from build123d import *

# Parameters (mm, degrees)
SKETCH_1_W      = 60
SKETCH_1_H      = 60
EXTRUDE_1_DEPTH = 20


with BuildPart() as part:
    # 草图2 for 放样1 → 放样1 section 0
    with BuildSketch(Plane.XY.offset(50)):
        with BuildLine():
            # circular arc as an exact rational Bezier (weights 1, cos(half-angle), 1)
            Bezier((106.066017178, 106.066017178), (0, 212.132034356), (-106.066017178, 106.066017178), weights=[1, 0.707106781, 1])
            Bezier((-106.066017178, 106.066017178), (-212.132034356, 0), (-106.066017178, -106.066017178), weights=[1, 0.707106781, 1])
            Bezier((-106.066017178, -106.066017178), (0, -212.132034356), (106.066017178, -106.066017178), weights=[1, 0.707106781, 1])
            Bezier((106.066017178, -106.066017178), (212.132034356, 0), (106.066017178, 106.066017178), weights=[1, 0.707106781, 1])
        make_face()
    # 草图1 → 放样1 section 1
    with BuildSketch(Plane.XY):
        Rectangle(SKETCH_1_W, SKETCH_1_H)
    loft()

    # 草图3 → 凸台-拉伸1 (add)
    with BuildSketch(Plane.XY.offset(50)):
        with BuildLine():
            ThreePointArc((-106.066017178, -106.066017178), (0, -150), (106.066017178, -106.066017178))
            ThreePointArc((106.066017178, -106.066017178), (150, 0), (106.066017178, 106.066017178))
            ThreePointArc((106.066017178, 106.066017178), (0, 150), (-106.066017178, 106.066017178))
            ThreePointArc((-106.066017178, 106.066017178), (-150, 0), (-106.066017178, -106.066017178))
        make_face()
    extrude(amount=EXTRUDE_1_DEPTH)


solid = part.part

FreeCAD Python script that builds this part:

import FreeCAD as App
import Part
import Sketcher
Q = App.Units.Quantity

doc = App.newDocument("Part")
body = doc.addObject("PartDesign::Body", "Body")

# Sketch on XY plane
sketch1 = doc.addObject("Sketcher::SketchObject", "Sketch")
body.addObject(sketch1)
sketch1.AttachmentSupport = (doc.XY_Plane, [""])
sketch1.MapMode = "FlatFace"
sketch1.AttachmentOffset = App.Placement(App.Vector(0, 0, 50), App.Rotation())
sketch1.addGeometry(Part.BSplineCurve([App.Vector(106.066017, -106.066017, 0), App.Vector(136.066017, -76.066017, 0), App.Vector(161.764069, -28.400974, 0), App.Vector(161.764069, 28.400974, 0), App.Vector(136.066017, 76.066017, 0), App.Vector(76.066017, 136.066017, 0), App.Vector(28.400974, 161.764069, 0), App.Vector(-28.400974, 161.764069, 0), App.Vector(-76.066017, 136.066017, 0), App.Vector(-136.066017, 76.066017, 0), App.Vector(-161.764069, 28.400974, 0), App.Vector(-161.764069, -28.400974, 0), App.Vector(-136.066017, -76.066017, 0), App.Vector(-76.066017, -136.066017, 0), App.Vector(-28.400974, -161.764069, 0), App.Vector(28.400974, -161.764069, 0), App.Vector(76.066017, -136.066017, 0), App.Vector(106.066017, -106.066017, 0)], [6, 4, 4, 4, 6], [0, 1, 2, 3, 4], False, 5, [1, 1, 0.965685425, 0.965685425, 1, 1, 0.965685425, 0.965685425, 1, 1, 0.965685425, 0.965685425, 1, 1, 0.965685425, 0.965685425, 1, 1], False), False)
sketch1.addConstraint(Sketcher.Constraint("Block", 0))

# Sketch on XY plane
sketch2 = doc.addObject("Sketcher::SketchObject", "Sketch001")
body.addObject(sketch2)
sketch2.AttachmentSupport = (doc.XY_Plane, [""])
sketch2.MapMode = "FlatFace"
sketch2.addGeometry([
    Part.LineSegment(App.Vector(-30, 30, 0), App.Vector(-30, -30, 0)),
    Part.LineSegment(App.Vector(-30, -30, 0), App.Vector(30, -30, 0)),
    Part.LineSegment(App.Vector(30, -30, 0), App.Vector(30, 30, 0)),
    Part.LineSegment(App.Vector(30, 30, 0), App.Vector(-30, 30, 0)),
], False)
sketch2.addConstraint([
    Sketcher.Constraint("Coincident", 0, 2, 1, 1),
    Sketcher.Constraint("Coincident", 1, 2, 2, 1),
    Sketcher.Constraint("Coincident", 2, 2, 3, 1),
    Sketcher.Constraint("Coincident", 3, 2, 0, 1),
    Sketcher.Constraint("Vertical", 0),
    Sketcher.Constraint("Horizontal", 1),
    Sketcher.Constraint("Vertical", 2),
    Sketcher.Constraint("Horizontal", 3),
    Sketcher.Constraint("Symmetric", 0, 2, 2, 2, -1, 1),
    Sketcher.Constraint("Equal", 3, 0),
    Sketcher.Constraint("DistanceX", 1, 1, 1, 2, Q("60 mm")),
])

additiveloft = doc.addObject("PartDesign::AdditiveLoft", "AdditiveLoft")
body.addObject(additiveloft)
additiveloft.Profile = sketch1
additiveloft.Sections = [sketch2]

# Sketch on XY plane
sketch3 = doc.addObject("Sketcher::SketchObject", "Sketch002")
body.addObject(sketch3)
sketch3.AttachmentSupport = (doc.XY_Plane, [""])
sketch3.MapMode = "FlatFace"
sketch3.AttachmentOffset = App.Placement(App.Vector(0, 0, 50), App.Rotation())
sketch3.addGeometry(Part.Circle(App.Vector(0, 0, 0), App.Vector(0, 0, 1), 150), False)
sketch3.addConstraint([
    Sketcher.Constraint("Coincident", 0, 3, -1, 1),
    Sketcher.Constraint("Diameter", 0, Q("300 mm")),
])
pad1 = doc.addObject("PartDesign::Pad", "Pad")
body.addObject(pad1)
pad1.Profile = sketch3
pad1.Length = 20

doc.recompute()
